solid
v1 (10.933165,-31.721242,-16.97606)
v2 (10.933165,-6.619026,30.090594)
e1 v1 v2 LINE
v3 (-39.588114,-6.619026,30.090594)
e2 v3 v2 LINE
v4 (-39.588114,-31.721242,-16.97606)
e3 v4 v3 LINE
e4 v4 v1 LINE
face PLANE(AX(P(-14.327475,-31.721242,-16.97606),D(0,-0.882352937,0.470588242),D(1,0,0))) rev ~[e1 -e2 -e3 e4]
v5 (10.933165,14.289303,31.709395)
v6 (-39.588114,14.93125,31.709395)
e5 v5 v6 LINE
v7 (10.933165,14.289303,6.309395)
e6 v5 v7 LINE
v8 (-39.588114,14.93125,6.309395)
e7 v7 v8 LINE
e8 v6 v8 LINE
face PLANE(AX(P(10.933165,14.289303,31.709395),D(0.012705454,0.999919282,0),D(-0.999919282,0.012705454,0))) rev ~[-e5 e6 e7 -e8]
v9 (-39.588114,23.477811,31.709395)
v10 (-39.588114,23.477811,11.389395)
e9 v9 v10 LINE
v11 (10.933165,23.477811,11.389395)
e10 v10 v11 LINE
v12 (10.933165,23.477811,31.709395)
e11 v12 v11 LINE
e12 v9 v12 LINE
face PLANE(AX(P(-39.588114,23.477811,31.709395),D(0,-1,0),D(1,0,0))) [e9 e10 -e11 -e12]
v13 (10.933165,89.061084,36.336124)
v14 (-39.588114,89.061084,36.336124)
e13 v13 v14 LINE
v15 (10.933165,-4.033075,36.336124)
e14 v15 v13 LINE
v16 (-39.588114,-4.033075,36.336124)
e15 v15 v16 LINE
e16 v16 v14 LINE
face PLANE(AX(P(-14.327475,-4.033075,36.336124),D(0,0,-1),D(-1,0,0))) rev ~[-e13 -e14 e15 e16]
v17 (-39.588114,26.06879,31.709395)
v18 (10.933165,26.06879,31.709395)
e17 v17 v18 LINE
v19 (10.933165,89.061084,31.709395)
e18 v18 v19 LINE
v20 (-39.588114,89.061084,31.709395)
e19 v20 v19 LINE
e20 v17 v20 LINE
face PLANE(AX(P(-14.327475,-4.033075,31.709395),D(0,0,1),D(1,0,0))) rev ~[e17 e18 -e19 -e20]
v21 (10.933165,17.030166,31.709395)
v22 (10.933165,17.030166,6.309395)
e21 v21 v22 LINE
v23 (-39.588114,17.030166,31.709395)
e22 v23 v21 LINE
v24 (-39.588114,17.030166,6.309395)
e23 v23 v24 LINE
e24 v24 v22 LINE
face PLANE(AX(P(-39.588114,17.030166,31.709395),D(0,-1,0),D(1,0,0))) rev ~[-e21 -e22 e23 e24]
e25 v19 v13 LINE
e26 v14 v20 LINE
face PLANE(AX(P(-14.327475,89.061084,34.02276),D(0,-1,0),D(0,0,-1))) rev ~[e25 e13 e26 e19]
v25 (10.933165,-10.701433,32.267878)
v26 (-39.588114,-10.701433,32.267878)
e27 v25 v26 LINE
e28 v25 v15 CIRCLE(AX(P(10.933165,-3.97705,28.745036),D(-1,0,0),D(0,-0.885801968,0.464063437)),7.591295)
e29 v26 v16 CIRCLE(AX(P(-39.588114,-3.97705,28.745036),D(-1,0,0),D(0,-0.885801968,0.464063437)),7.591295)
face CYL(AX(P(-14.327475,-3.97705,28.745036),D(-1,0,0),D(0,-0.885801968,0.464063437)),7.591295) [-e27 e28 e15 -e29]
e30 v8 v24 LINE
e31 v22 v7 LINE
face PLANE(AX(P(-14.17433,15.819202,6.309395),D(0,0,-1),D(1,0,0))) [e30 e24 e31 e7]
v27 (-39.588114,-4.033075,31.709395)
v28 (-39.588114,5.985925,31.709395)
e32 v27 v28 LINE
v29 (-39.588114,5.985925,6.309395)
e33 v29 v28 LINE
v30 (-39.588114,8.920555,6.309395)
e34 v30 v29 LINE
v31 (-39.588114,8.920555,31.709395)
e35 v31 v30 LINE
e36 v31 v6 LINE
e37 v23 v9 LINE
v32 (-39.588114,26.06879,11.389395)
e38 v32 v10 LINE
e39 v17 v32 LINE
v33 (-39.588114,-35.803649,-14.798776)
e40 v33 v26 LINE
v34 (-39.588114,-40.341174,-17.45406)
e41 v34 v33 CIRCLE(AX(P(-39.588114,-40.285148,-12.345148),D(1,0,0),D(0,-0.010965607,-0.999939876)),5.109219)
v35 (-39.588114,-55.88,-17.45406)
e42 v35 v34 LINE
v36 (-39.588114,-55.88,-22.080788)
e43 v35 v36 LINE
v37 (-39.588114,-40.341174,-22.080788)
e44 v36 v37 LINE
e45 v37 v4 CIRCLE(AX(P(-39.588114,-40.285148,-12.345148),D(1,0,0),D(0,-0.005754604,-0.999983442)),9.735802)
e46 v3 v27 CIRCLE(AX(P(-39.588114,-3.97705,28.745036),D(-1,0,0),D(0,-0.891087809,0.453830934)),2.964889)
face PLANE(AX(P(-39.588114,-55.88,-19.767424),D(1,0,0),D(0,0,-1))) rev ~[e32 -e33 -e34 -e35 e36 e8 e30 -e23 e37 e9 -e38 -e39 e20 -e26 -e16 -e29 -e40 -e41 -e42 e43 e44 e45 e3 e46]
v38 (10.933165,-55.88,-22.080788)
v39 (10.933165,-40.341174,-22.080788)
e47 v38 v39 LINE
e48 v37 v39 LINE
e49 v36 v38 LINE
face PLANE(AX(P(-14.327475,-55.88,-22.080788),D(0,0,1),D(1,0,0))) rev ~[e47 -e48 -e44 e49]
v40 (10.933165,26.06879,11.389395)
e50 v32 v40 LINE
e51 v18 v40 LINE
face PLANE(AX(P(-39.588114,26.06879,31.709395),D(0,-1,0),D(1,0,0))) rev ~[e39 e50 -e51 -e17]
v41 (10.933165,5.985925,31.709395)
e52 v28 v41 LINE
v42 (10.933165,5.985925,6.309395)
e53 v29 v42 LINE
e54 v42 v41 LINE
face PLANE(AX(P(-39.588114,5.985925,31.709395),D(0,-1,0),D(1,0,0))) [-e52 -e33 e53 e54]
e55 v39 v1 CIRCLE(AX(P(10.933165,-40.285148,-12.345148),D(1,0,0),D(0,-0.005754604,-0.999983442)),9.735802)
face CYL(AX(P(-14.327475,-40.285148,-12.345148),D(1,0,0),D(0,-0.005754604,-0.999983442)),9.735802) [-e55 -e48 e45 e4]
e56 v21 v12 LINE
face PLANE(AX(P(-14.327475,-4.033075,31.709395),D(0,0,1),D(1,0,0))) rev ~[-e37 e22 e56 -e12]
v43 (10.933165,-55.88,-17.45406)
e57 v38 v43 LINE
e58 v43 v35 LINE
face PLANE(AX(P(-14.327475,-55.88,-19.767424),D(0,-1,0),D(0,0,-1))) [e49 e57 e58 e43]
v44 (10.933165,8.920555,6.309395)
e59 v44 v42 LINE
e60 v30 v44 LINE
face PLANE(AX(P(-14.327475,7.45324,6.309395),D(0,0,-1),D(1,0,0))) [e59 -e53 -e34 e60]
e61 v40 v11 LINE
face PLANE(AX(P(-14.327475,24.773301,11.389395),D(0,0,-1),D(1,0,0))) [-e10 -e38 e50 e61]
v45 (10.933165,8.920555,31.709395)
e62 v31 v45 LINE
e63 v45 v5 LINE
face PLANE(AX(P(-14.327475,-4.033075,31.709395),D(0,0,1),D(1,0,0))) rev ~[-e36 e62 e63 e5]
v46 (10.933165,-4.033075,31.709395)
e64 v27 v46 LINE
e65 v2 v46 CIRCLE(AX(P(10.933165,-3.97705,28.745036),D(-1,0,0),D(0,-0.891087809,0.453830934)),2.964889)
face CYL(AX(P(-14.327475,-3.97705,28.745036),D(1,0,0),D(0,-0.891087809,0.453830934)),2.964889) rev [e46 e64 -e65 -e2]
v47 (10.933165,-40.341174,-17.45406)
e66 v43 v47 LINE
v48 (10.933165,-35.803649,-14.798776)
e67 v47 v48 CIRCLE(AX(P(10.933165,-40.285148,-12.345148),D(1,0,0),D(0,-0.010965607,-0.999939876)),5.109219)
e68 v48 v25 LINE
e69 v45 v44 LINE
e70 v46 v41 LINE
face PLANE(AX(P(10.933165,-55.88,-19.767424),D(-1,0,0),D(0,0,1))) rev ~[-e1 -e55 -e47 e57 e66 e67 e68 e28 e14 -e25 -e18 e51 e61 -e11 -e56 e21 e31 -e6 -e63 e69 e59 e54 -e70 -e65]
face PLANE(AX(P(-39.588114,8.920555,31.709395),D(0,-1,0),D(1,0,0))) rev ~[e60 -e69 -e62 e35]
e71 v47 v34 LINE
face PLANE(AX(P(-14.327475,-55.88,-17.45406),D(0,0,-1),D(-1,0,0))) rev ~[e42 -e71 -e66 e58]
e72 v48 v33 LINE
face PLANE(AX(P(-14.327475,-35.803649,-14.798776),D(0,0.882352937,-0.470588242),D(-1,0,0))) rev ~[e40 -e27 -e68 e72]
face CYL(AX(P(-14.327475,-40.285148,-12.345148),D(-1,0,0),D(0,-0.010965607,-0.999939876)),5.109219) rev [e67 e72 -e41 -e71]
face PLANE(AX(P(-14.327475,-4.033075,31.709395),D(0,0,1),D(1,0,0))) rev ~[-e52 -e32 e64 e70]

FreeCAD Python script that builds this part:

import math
import FreeCAD as App
import Part
import Sketcher
Q = App.Units.Quantity

doc = App.newDocument("Part")
body = doc.addObject("PartDesign::Body", "Body")

sketch1 = body.newObject("Sketcher::SketchObject", "Sketch")
sketch1.AttachmentSupport = (doc.getObject("XZ_Plane"), [""])
sketch1.MapMode = "FlatFace"
sketch1.AttachmentOffset = App.Placement(App.Vector(0, 0, 2.2 * 25.4), App.Rotation())
sketch1.addGeometry(Part.LineSegment(App.Vector(-39.588114, -17.45406, 0), App.Vector(-39.588114, -22.080788, 0)), False)
sketch1.addGeometry(Part.LineSegment(App.Vector(-39.588114, -22.080788, 0), App.Vector(10.933165, -22.080788, 0)), False)
sketch1.addGeometry(Part.LineSegment(App.Vector(10.933165, -22.080788, 0), App.Vector(10.933165, -17.45406, 0)), False)
sketch1.addGeometry(Part.LineSegment(App.Vector(10.933165, -17.45406, 0), App.Vector(-39.588114, -17.45406, 0)), False)
sketch1.addConstraint(Sketcher.Constraint("Coincident", 0, 2, 1, 1))
sketch1.addConstraint(Sketcher.Constraint("Coincident", 1, 2, 2, 1))
sketch1.addConstraint(Sketcher.Constraint("Coincident", 2, 2, 3, 1))
sketch1.addConstraint(Sketcher.Constraint("Coincident", 3, 2, 0, 1))
sketch1.addConstraint(Sketcher.Constraint("Vertical", 0))
sketch1.addConstraint(Sketcher.Constraint("Horizontal", 1))
sketch1.addConstraint(Sketcher.Constraint("Vertical", 2))
sketch1.addConstraint(Sketcher.Constraint("Horizontal", 3))
sketch1.addConstraint(Sketcher.Constraint("DistanceX", 1, 1, 1, 2, 50.521279))
sketch1.addConstraint(Sketcher.Constraint("DistanceY", 0, 2, 0, 1, 4.626729))
sketch1.addConstraint(Sketcher.Constraint("DistanceY", 0, 2, -1, 1, 22.080788))
sketch1.addConstraint(Sketcher.Constraint("DistanceX", 0, 2, -1, 1, 39.588114))

sketch2 = body.newObject("Sketcher::SketchObject", "Sketch001")
sketch2.AttachmentSupport = (doc.getObject("YZ_Plane"), [""])
sketch2.MapMode = "FlatFace"
sketch2.addGeometry(Part.LineSegment(App.Vector(-55.823974, -18.695148, 0), App.Vector(-40.285148, -18.695148, 0)), False)
sketch2.addGeometry(Part.ArcOfCircle(Part.Circle(App.Vector(-40.285148, -12.345148, 0), App.Vector(0, 0, 1), 6.35), math.radians(-90), math.radians(-28.072487)), False)
sketch2.addGeometry(Part.LineSegment(App.Vector(-34.682207, -15.333383, 0), App.Vector(-9.579991, 31.733271, 0)), False)
sketch2.addGeometry(Part.ArcOfCircle(Part.Circle(App.Vector(-3.97705, 28.745036, 0), App.Vector(0, 0, 1), 6.35), math.radians(90), math.radians(151.927513)), False)
sketch2.addGeometry(Part.LineSegment(App.Vector(-3.97705, 35.095036, 0), App.Vector(89.11711, 35.095036, 0)), False)
sketch2.addConstraint(Sketcher.Constraint("Tangent", 0, 2, 1, 1))
sketch2.addConstraint(Sketcher.Constraint("Tangent", 1, 2, 2, 1))
sketch2.addConstraint(Sketcher.Constraint("Tangent", 2, 2, 3, 2))
sketch2.addConstraint(Sketcher.Constraint("Tangent", 3, 1, 4, 1))
sketch2.addConstraint(Sketcher.Constraint("Horizontal", 0))
sketch2.addConstraint(Sketcher.Constraint("Horizontal", 4))
sketch2.addConstraint(Sketcher.Constraint("Equal", 1, 3))
sketch2.addConstraint(Sketcher.Constraint("Radius", 1, Q("0.25 in")))
sketch2.addConstraint(Sketcher.Constraint("DistanceX", 4, 1, 4, 2, 93.094159))
sketch2.addConstraint(Sketcher.Constraint("DistanceX", 1, 3, 3, 3, 36.308098))
sketch2.addConstraint(Sketcher.Constraint("DistanceX", 2, 2, 4, 2, 98.6971))
sketch2.addConstraint(Sketcher.Constraint("DistanceX", 0, 1, 0, 2, 15.538826))
sketch2.addConstraint(Sketcher.Constraint("DistanceX", 1, 3, -1, 1, 40.285148))
sketch2.addConstraint(Sketcher.Constraint("DistanceY", -1, 1, 2, 2, 31.733271))
doc.recompute()

additivepipe = body.newObject("PartDesign::AdditivePipe", "AdditivePipe")
additivepipe.Profile = sketch1
additivepipe.Spine = (sketch2, ["Edge1", "Edge2", "Edge3", "Edge4", "Edge5"])

sketch3 = body.newObject("Sketcher::SketchObject", "Sketch002")
sketch3.AttachmentSupport = (doc.getObject("XY_Plane"), [""])
sketch3.MapMode = "FlatFace"
sketch3.AttachmentOffset = App.Placement(App.Vector(0, 0, 31.709395), App.Rotation())
sketch3.addGeometry(Part.LineSegment(App.Vector(-39.588114, 5.985925, 0), App.Vector(-39.588114, 8.920555, 0)), False)
sketch3.addGeometry(Part.LineSegment(App.Vector(-39.588114, 8.920555, 0), App.Vector(10.933165, 8.920555, 0)), False)
sketch3.addGeometry(Part.LineSegment(App.Vector(10.933165, 8.920555, 0), App.Vector(10.933165, 5.985925, 0)), False)
sketch3.addGeometry(Part.LineSegment(App.Vector(10.933165, 5.985925, 0), App.Vector(-39.588114, 5.985925, 0)), False)
sketch3.addConstraint(Sketcher.Constraint("Coincident", 0, 2, 1, 1))
sketch3.addConstraint(Sketcher.Constraint("Coincident", 1, 2, 2, 1))
sketch3.addConstraint(Sketcher.Constraint("Coincident", 2, 2, 3, 1))
sketch3.addConstraint(Sketcher.Constraint("Coincident", 3, 2, 0, 1))
sketch3.addConstraint(Sketcher.Constraint("Vertical", 0))
sketch3.addConstraint(Sketcher.Constraint("Horizontal", 1))
sketch3.addConstraint(Sketcher.Constraint("Vertical", 2))
sketch3.addConstraint(Sketcher.Constraint("Horizontal", 3))
sketch3.addConstraint(Sketcher.Constraint("DistanceX", 1, 1, 1, 2, 50.521279))
sketch3.addConstraint(Sketcher.Constraint("DistanceY", 0, 1, 0, 2, 2.93463))
sketch3.addConstraint(Sketcher.Constraint("DistanceX", 0, 2, -1, 1, 39.588114))
sketch3.addConstraint(Sketcher.Constraint("DistanceY", -1, 1, 0, 2, 8.920555))
pad1 = body.newObject("PartDesign::Pad", "Pad")
pad1.Profile = sketch3
pad1.Length = Q("0.79 in")
pad1.Reversed = True

sketch4 = body.newObject("Sketcher::SketchObject", "Sketch003")
sketch4.AttachmentSupport = (doc.getObject("XY_Plane"), [""])
sketch4.MapMode = "FlatFace"
sketch4.AttachmentOffset = App.Placement(App.Vector(0, 0, 31.709395), App.Rotation())
sketch4.addGeometry(Part.LineSegment(App.Vector(-39.588114, 5.985925, 0), App.Vector(-39.588114, 8.920555, 0)), False)
sketch4.addGeometry(Part.LineSegment(App.Vector(-39.588114, 8.920555, 0), App.Vector(10.933165, 8.920555, 0)), False)
sketch4.addGeometry(Part.LineSegment(App.Vector(10.933165, 8.920555, 0), App.Vector(10.933165, 5.985925, 0)), False)
sketch4.addGeometry(Part.LineSegment(App.Vector(10.933165, 5.985925, 0), App.Vector(-39.588114, 5.985925, 0)), False)
sketch4.addGeometry(Part.LineSegment(App.Vector(10.933165, 17.030166, 0), App.Vector(10.933165, 14.289303, 0)), False)
sketch4.addGeometry(Part.LineSegment(App.Vector(10.933165, 14.289303, 0), App.Vector(-39.588114, 14.93125, 0)), False)
sketch4.addGeometry(Part.LineSegment(App.Vector(-39.588114, 14.93125, 0), App.Vector(-39.588114, 17.030166, 0)), False)
sketch4.addGeometry(Part.LineSegment(App.Vector(-39.588114, 17.030166, 0), App.Vector(10.933165, 17.030166, 0)), False)
sketch4.addConstraint(Sketcher.Constraint("Coincident", 0, 2, 1, 1))
sketch4.addConstraint(Sketcher.Constraint("Coincident", 1, 2, 2, 1))
sketch4.addConstraint(Sketcher.Constraint("Coincident", 2, 2, 3, 1))
sketch4.addConstraint(Sketcher.Constraint("Coincident", 3, 2, 0, 1))
sketch4.addConstraint(Sketcher.Constraint("Coincident", 4, 2, 5, 1))
sketch4.addConstraint(Sketcher.Constraint("Coincident", 5, 2, 6, 1))
sketch4.addConstraint(Sketcher.Constraint("Coincident", 6, 2, 7, 1))
sketch4.addConstraint(Sketcher.Constraint("Coincident", 7, 2, 4, 1))
sketch4.addConstraint(Sketcher.Constraint("Vertical", 0))
sketch4.addConstraint(Sketcher.Constraint("Horizontal", 1))
sketch4.addConstraint(Sketcher.Constraint("Vertical", 2))
sketch4.addConstraint(Sketcher.Constraint("Horizontal", 3))
sketch4.addConstraint(Sketcher.Constraint("Vertical", 4))
sketch4.addConstraint(Sketcher.Constraint("Vertical", 6))
sketch4.addConstraint(Sketcher.Constraint("Horizontal", 7))
sketch4.addConstraint(Sketcher.Constraint("Vertical", 2, 2, 4, 2))
sketch4.addConstraint(Sketcher.Constraint("Vertical", 3, 2, 5, 2))
sketch4.addConstraint(Sketcher.Constraint("DistanceX", 1, 1, 1, 2, 50.521279))
sketch4.addConstraint(Sketcher.Constraint("DistanceY", 0, 1, 0, 2, 2.93463))
sketch4.addConstraint(Sketcher.Constraint("DistanceY", 4, 2, 4, 1, 2.740864))
sketch4.addConstraint(Sketcher.Constraint("DistanceY", 6, 1, 6, 2, 2.098916))
sketch4.addConstraint(Sketcher.Constraint("DistanceY", -1, 1, 5, 2, 14.93125))
sketch4.addConstraint(Sketcher.Constraint("DistanceY", 2, 2, 4, 2, 8.303378))
sketch4.addConstraint(Sketcher.Constraint("DistanceX", 0, 2, -1, 1, 39.588114))
pad2 = body.newObject("PartDesign::Pad", "Pad001")
pad2.Profile = sketch4
pad2.Length = Q("1 in")
pad2.Reversed = True

sketch5 = body.newObject("Sketcher::SketchObject", "Sketch004")
sketch5.AttachmentSupport = (doc.getObject("XY_Plane"), [""])
sketch5.MapMode = "FlatFace"
sketch5.AttachmentOffset = App.Placement(App.Vector(0, 0, 31.709395), App.Rotation())
sketch5.addGeometry(Part.LineSegment(App.Vector(-39.588114, 23.477811, 0), App.Vector(-39.588114, 26.06879, 0)), False)
sketch5.addGeometry(Part.LineSegment(App.Vector(-39.588114, 26.06879, 0), App.Vector(10.933165, 26.06879, 0)), False)
sketch5.addGeometry(Part.LineSegment(App.Vector(10.933165, 26.06879, 0), App.Vector(10.933165, 23.477811, 0)), False)
sketch5.addGeometry(Part.LineSegment(App.Vector(10.933165, 23.477811, 0), App.Vector(-39.588114, 23.477811, 0)), False)
sketch5.addConstraint(Sketcher.Constraint("Coincident", 0, 2, 1, 1))
sketch5.addConstraint(Sketcher.Constraint("Coincident", 1, 2, 2, 1))
sketch5.addConstraint(Sketcher.Constraint("Coincident", 2, 2, 3, 1))
sketch5.addConstraint(Sketcher.Constraint("Coincident", 3, 2, 0, 1))
sketch5.addConstraint(Sketcher.Constraint("Vertical", 0))
sketch5.addConstraint(Sketcher.Constraint("Horizontal", 1))
sketch5.addConstraint(Sketcher.Constraint("Vertical", 2))
sketch5.addConstraint(Sketcher.Constraint("Horizontal", 3))
sketch5.addConstraint(Sketcher.Constraint("DistanceX", 1, 1, 1, 2, 50.521279))
sketch5.addConstraint(Sketcher.Constraint("DistanceY", 0, 1, 0, 2, 2.590979))
sketch5.addConstraint(Sketcher.Constraint("DistanceY", -1, 1, 0, 2, 26.06879))
sketch5.addConstraint(Sketcher.Constraint("DistanceX", 0, 2, -1, 1, 39.588114))
pad3 = body.newObject("PartDesign::Pad", "Pad002")
pad3.Profile = sketch5
pad3.Length = Q("0.8 in")
pad3.Reversed = True

doc.recompute()
